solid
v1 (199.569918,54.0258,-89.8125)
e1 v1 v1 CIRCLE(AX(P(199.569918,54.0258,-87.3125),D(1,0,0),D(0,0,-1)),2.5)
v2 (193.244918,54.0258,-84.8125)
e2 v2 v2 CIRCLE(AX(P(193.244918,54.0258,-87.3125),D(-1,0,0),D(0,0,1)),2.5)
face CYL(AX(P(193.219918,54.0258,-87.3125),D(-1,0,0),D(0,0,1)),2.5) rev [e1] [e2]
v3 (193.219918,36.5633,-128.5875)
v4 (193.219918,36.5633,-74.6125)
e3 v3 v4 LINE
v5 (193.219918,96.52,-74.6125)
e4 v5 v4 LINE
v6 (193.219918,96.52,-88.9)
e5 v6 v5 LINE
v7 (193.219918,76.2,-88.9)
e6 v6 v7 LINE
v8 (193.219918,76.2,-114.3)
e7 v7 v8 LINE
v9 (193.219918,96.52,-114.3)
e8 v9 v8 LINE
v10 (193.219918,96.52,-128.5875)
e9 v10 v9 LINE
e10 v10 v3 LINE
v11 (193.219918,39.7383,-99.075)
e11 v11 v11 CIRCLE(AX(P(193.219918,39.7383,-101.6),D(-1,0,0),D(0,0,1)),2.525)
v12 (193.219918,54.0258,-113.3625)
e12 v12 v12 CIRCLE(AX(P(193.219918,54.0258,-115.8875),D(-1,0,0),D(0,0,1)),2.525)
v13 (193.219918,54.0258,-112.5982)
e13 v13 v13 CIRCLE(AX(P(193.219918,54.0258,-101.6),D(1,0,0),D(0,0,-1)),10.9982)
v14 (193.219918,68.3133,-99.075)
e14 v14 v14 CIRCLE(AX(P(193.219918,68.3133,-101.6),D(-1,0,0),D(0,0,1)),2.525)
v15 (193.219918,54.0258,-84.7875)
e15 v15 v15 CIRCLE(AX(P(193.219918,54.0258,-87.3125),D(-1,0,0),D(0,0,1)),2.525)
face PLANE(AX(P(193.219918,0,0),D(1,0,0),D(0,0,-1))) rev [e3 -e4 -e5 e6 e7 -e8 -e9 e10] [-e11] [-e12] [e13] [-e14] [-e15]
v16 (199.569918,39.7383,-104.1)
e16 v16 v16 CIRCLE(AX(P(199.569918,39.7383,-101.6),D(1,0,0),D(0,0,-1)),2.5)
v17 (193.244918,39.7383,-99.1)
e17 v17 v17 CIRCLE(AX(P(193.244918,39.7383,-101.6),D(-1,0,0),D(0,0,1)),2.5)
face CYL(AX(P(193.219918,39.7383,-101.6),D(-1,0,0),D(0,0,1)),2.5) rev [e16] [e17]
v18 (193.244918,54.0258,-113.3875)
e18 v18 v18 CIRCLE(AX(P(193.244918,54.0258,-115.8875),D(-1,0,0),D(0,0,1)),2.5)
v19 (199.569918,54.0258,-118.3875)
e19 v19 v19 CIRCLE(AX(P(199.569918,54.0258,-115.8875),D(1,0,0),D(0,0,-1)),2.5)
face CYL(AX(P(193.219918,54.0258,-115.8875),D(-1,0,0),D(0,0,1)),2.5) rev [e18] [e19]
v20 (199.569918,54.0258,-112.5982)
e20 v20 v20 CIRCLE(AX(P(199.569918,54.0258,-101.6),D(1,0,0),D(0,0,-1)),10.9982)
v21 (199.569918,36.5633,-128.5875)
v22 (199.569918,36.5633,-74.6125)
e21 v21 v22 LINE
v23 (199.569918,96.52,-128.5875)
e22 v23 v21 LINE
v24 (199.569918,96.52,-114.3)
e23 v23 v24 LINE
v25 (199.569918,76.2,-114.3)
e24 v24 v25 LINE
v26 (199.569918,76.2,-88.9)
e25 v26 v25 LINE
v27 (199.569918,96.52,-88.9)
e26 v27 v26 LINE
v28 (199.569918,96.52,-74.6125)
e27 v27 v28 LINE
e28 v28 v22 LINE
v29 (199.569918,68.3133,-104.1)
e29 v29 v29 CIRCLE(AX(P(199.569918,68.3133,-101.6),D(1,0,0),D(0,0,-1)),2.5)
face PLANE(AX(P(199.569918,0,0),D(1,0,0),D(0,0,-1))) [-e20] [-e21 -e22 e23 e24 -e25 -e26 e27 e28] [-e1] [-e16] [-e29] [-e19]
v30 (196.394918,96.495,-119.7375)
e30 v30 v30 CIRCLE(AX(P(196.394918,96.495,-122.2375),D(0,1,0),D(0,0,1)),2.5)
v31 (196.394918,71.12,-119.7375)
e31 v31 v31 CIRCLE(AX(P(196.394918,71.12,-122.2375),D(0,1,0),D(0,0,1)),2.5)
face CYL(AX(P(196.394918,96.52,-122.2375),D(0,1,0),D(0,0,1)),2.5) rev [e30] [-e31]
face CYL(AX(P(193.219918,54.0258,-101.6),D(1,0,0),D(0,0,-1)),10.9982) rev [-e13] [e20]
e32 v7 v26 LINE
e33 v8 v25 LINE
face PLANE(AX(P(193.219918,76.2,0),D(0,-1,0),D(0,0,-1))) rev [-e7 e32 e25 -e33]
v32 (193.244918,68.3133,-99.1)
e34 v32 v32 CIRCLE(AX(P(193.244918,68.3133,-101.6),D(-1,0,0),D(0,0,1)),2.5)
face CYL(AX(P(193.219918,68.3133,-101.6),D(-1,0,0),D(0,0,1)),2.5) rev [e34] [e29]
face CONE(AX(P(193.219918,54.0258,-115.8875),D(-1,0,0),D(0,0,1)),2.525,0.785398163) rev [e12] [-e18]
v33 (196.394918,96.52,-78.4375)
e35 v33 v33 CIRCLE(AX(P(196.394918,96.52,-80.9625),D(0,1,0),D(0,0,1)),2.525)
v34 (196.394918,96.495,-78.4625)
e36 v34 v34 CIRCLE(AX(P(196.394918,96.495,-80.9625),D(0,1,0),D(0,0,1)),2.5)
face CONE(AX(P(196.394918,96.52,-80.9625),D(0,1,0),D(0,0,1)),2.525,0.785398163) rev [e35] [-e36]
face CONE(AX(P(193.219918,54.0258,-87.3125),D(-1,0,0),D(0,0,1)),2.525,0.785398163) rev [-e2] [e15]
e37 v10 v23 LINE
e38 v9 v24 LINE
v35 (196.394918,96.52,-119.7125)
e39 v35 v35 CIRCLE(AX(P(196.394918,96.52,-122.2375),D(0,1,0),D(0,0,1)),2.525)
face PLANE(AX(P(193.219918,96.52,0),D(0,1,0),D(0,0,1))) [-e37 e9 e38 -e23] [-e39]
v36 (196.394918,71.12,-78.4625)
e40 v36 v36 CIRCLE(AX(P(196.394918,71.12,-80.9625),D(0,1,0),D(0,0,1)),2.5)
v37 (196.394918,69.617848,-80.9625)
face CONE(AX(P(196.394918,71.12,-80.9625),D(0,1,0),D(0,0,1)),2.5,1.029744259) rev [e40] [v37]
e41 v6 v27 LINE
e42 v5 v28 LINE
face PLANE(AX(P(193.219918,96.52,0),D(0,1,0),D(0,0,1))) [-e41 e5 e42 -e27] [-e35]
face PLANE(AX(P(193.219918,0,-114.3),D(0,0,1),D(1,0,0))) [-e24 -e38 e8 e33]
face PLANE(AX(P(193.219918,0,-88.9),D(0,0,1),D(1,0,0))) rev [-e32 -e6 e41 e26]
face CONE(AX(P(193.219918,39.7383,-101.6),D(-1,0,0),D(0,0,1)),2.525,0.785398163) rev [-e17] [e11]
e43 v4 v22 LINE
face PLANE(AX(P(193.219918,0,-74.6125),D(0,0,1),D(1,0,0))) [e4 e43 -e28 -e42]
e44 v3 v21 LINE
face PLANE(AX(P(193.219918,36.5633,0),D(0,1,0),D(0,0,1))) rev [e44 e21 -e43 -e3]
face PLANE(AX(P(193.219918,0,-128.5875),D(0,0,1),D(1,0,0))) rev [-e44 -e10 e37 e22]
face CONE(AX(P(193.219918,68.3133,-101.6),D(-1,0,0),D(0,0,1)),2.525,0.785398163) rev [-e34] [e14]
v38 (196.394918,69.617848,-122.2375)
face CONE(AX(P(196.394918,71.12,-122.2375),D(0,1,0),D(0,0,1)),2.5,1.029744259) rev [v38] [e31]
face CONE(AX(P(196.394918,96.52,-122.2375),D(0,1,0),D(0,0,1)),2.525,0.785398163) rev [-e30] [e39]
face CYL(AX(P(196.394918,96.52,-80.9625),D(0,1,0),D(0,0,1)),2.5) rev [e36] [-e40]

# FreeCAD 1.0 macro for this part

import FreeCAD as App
import Part
import Sketcher
from FreeCAD import Vector
Q = App.Units.Quantity


def add_polygon(sketch, points):
    """Adds a closed chain of lines whose ends are joined by coincident constraints."""
    first, n = sketch.GeometryCount, len(points)
    for a, b in zip(points, points[1:] + points[:1]):
        sketch.addGeometry(Part.LineSegment(App.Vector(*a, 0), App.Vector(*b, 0)), False)
    for i in range(n):
        sketch.addConstraint(Sketcher.Constraint("Coincident", first + i, 2, first + (i + 1) % n, 1))

doc = App.newDocument("Part")
body = doc.addObject("PartDesign::Body", "Body")

sketch1 = doc.addObject("Sketcher::SketchObject", "Sketch")
body.addObject(sketch1)
sketch1.AttachmentSupport = (doc.YZ_Plane, [""])
sketch1.MapMode = "FlatFace"
sketch1.AttachmentOffset = App.Placement(Vector(0, 0, 199.569918), App.Rotation())
add_polygon(sketch1, [(37, -75), (37, -129), (97, -129), (97, -114), (76, -114), (76, -89), (97, -89), (97, -75)])
sketch1.addGeometry(Part.Circle(Vector(54, -102, 0), Vector(0, 0, 1), 11), False)
sketch1.addConstraint([
    Sketcher.Constraint("Vertical", 0),
    Sketcher.Constraint("Horizontal", 1),
    Sketcher.Constraint("Vertical", 2),
    Sketcher.Constraint("Horizontal", 3),
    Sketcher.Constraint("Vertical", 4),
    Sketcher.Constraint("Horizontal", 5),
    Sketcher.Constraint("Vertical", 6),
    Sketcher.Constraint("Horizontal", 7),
    Sketcher.Constraint("Vertical", 2, 2, 5, 2),
    Sketcher.Constraint("Equal", 2, 6),
    Sketcher.Constraint("DistanceY", 4, 1, 4, 2, Q("1 in")),
    Sketcher.Constraint("Diameter", 8, Q("0.866 in")),
    Sketcher.Constraint("DistanceX", 3, 2, 3, 1, Q("0.8 in")),
    Sketcher.Constraint("DistanceY", 8, 3, -1, 1, Q("4 in")),
    Sketcher.Constraint("DistanceX", -1, 1, 3, 2, Q("3 in")),
    Sketcher.Constraint("DistanceY", 2, 2, -1, 1, Q("4.5 in")),
    Sketcher.Constraint("DistanceY", 0, 2, 0, 1, Q("2.125 in")),
    Sketcher.Constraint("DistanceX", 1, 1, 1, 2, Q("2.3605 in")),
    Sketcher.Constraint("DistanceX", -1, 1, 8, 3, Q("2.127 in")),
])
pad1 = doc.addObject("PartDesign::Pad", "Pad")
body.addObject(pad1)
pad1.Profile = sketch1
pad1.Length = Q("0.25 in")
pad1.Reversed = True

sketch2 = doc.addObject("Sketcher::SketchObject", "Sketch001")
body.addObject(sketch2)
sketch2.AttachmentSupport = (doc.YZ_Plane, [""])
sketch2.MapMode = "FlatFace"
sketch2.AttachmentOffset = App.Placement(Vector(0, 0, 193.219918), App.Rotation())
sketch2.addGeometry([
    Part.Circle(Vector(68.3, -101.6, 0), Vector(0, 0, 1), 2.5),
    Part.Circle(Vector(54, -87.3, 0), Vector(0, 0, 1), 2.5),
    Part.Circle(Vector(39.7, -101.6, 0), Vector(0, 0, 1), 2.5),
    Part.Circle(Vector(54, -115.9, 0), Vector(0, 0, 1), 2.5),
], False)
sketch2.addConstraint([
    Sketcher.Constraint("Equal", 0, 1),
    Sketcher.Constraint("Equal", 1, 2),
    Sketcher.Constraint("Equal", 2, 3),
    Sketcher.Constraint("Horizontal", 0, 3, 2, 3),
    Sketcher.Constraint("Vertical", 1, 3, 3, 3),
    Sketcher.Constraint("DistanceY", 0, 3, -1, 1, Q("4 in")),
    Sketcher.Constraint("Diameter", 0, 5.0),
    Sketcher.Constraint("DistanceX", -1, 1, 1, 3, Q("2.127 in")),
    Sketcher.Constraint("DistanceY", 1, 3, -1, 1, Q("3.4375 in")),
    Sketcher.Constraint("DistanceY", 3, 3, -1, 1, Q("4.5625 in")),
    Sketcher.Constraint("DistanceX", 1, 3, 0, 3, Q("0.5625 in")),
    Sketcher.Constraint("DistanceX", 2, 3, 1, 3, Q("0.5625 in")),
])
doc.recompute()
hole = doc.addObject("PartDesign::Hole", "Hole")
body.addObject(hole)
hole.Profile = sketch2
hole.ThreadType = "None"
hole.Diameter = 5
hole.DepthType = "Dimension"
hole.Depth = Q("1 in")
hole.DrillPoint = "Angled"
hole.DrillPointAngle = 118
hole.HoleCutType = "Countersink"
hole.HoleCutDiameter = 5.05
hole.HoleCutCountersinkAngle = 90
hole.Reversed = True

sketch3 = doc.addObject("Sketcher::SketchObject", "Sketch002")
body.addObject(sketch3)
sketch3.AttachmentSupport = (doc.XZ_Plane, [""])
sketch3.MapMode = "FlatFace"
sketch3.AttachmentOffset = App.Placement(Vector(0, 0, -3.8 * 25.4), App.Rotation())
sketch3.addGeometry([
    Part.Circle(Vector(196.4, -81, 0), Vector(0, 0, 1), 2.5),
    Part.Circle(Vector(196.4, -122.2, 0), Vector(0, 0, 1), 2.5),
], False)
sketch3.addConstraint([
    Sketcher.Constraint("Equal", 0, 1),
    Sketcher.Constraint("Vertical", 0, 3, 1, 3),
    Sketcher.Constraint("Diameter", 0, 5.0),
    Sketcher.Constraint("DistanceY", 0, 3, -1, 1, Q("3.1875 in")),
    Sketcher.Constraint("DistanceY", 1, 3, -1, 1, Q("4.8125 in")),
    Sketcher.Constraint("DistanceX", -1, 1, 0, 3, 196.394918),
])
doc.recompute()
hole2 = doc.addObject("PartDesign::Hole", "Hole001")
body.addObject(hole2)
hole2.Profile = sketch3
hole2.ThreadType = "None"
hole2.Diameter = 5
hole2.DepthType = "Dimension"
hole2.Depth = Q("1 in")
hole2.DrillPoint = "Angled"
hole2.DrillPointAngle = 118
hole2.HoleCutType = "Countersink"
hole2.HoleCutDiameter = 5.05
hole2.HoleCutCountersinkAngle = 90
hole2.Reversed = True

doc.recompute()
